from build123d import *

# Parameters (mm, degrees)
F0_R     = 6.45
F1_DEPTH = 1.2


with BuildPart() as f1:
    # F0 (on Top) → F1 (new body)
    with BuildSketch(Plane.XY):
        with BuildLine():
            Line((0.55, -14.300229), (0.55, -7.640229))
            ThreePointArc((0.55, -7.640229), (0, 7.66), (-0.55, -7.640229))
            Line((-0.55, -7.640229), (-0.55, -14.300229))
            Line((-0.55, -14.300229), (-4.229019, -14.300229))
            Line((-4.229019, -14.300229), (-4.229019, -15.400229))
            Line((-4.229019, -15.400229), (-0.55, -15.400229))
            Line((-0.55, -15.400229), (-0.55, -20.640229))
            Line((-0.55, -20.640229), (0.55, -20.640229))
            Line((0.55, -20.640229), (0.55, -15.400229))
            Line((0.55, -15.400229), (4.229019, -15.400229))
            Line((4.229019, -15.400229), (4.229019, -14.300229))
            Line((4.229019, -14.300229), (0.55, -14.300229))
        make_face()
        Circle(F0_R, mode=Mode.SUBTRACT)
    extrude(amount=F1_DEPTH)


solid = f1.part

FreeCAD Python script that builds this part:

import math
import FreeCAD as App
import Part
import Sketcher
from FreeCAD import Vector
Q = App.Units.Quantity

doc = App.newDocument("Part")
body = doc.addObject("PartDesign::Body", "Body")

# Sketch on XY plane
sketch1 = body.newObject("Sketcher::SketchObject", "Sketch")
sketch1.AttachmentSupport = (doc.getObject("XY_Plane"), [""])
sketch1.MapMode = "FlatFace"
sketch1.addGeometry(Part.LineSegment(Vector(0.55, -14.300229, 0), Vector(0.55, -7.640229, 0)), False)
sketch1.addGeometry(Part.ArcOfCircle(Part.Circle(Vector(0, 0, 0), Vector(0, 0, 1), 7.66), math.radians(-85.88253), math.radians(265.88253)), False)
sketch1.addGeometry(Part.LineSegment(Vector(-0.55, -7.640229, 0), Vector(-0.55, -14.300229, 0)), False)
sketch1.addGeometry(Part.LineSegment(Vector(-0.55, -14.300229, 0), Vector(-4.229019, -14.300229, 0)), False)
sketch1.addGeometry(Part.LineSegment(Vector(-4.229019, -14.300229, 0), Vector(-4.229019, -15.400229, 0)), False)
sketch1.addGeometry(Part.LineSegment(Vector(-4.229019, -15.400229, 0), Vector(-0.55, -15.400229, 0)), False)
sketch1.addGeometry(Part.LineSegment(Vector(-0.55, -15.400229, 0), Vector(-0.55, -20.640229, 0)), False)
sketch1.addGeometry(Part.LineSegment(Vector(-0.55, -20.640229, 0), Vector(0.55, -20.640229, 0)), False)
sketch1.addGeometry(Part.LineSegment(Vector(0.55, -20.640229, 0), Vector(0.55, -15.400229, 0)), False)
sketch1.addGeometry(Part.LineSegment(Vector(0.55, -15.400229, 0), Vector(4.229019, -15.400229, 0)), False)
sketch1.addGeometry(Part.LineSegment(Vector(4.229019, -15.400229, 0), Vector(4.229019, -14.300229, 0)), False)
sketch1.addGeometry(Part.LineSegment(Vector(4.229019, -14.300229, 0), Vector(0.55, -14.300229, 0)), False)
sketch1.addGeometry(Part.Circle(Vector(0, 0, 0), Vector(0, 0, 1), 6.45), False)
sketch1.addConstraint(Sketcher.Constraint("Coincident", 0, 2, 1, 1))
sketch1.addConstraint(Sketcher.Constraint("Coincident", 1, 2, 2, 1))
sketch1.addConstraint(Sketcher.Constraint("Coincident", 2, 2, 3, 1))
sketch1.addConstraint(Sketcher.Constraint("Coincident", 3, 2, 4, 1))
sketch1.addConstraint(Sketcher.Constraint("Coincident", 4, 2, 5, 1))
sketch1.addConstraint(Sketcher.Constraint("Coincident", 5, 2, 6, 1))
sketch1.addConstraint(Sketcher.Constraint("Coincident", 6, 2, 7, 1))
sketch1.addConstraint(Sketcher.Constraint("Coincident", 7, 2, 8, 1))
sketch1.addConstraint(Sketcher.Constraint("Coincident", 8, 2, 9, 1))
sketch1.addConstraint(Sketcher.Constraint("Coincident", 9, 2, 10, 1))
sketch1.addConstraint(Sketcher.Constraint("Coincident", 10, 2, 11, 1))
sketch1.addConstraint(Sketcher.Constraint("Coincident", 11, 2, 0, 1))
sketch1.addConstraint(Sketcher.Constraint("Vertical", 0))
sketch1.addConstraint(Sketcher.Constraint("Vertical", 2))
sketch1.addConstraint(Sketcher.Constraint("Horizontal", 3))
sketch1.addConstraint(Sketcher.Constraint("Vertical", 4))
sketch1.addConstraint(Sketcher.Constraint("Horizontal", 5))
sketch1.addConstraint(Sketcher.Constraint("Vertical", 6))
sketch1.addConstraint(Sketcher.Constraint("Horizontal", 7))
sketch1.addConstraint(Sketcher.Constraint("Vertical", 8))
sketch1.addConstraint(Sketcher.Constraint("Horizontal", 9))
sketch1.addConstraint(Sketcher.Constraint("Vertical", 10))
sketch1.addConstraint(Sketcher.Constraint("Horizontal", 11))
sketch1.addConstraint(Sketcher.Constraint("Coincident", 1, 3, -1, 1))
sketch1.addConstraint(Sketcher.Constraint("Coincident", 12, 3, -1, 1))
sketch1.addConstraint(Sketcher.Constraint("Symmetric", 5, 2, 8, 2, -2))
sketch1.addConstraint(Sketcher.Constraint("Symmetric", 3, 2, 10, 2, -2))
sketch1.addConstraint(Sketcher.Constraint("Horizontal", 0, 2, 1, 2))
sketch1.addConstraint(Sketcher.Constraint("Vertical", 2, 2, 5, 2))
sketch1.addConstraint(Sketcher.Constraint("Equal", 7, 4))
sketch1.addConstraint(Sketcher.Constraint("Diameter", 12, Q("12.9 mm")))
sketch1.addConstraint(Sketcher.Constraint("Radius", 1, Q("7.66 mm")))
sketch1.addConstraint(Sketcher.Constraint("DistanceX", 7, 1, 7, 2, Q("1.1 mm")))
sketch1.addConstraint(Sketcher.Constraint("DistanceY", 6, 2, 1, 2, Q("13 mm")))
sketch1.addConstraint(Sketcher.Constraint("DistanceY", 0, 1, 0, 2, Q("6.66 mm")))
sketch1.addConstraint(Sketcher.Constraint("DistanceX", 3, 2, 3, 1, Q("3.679019 mm")))
pad1 = body.newObject("PartDesign::Pad", "Pad")
pad1.Profile = sketch1
pad1.Length = 1.2

doc.recompute()
